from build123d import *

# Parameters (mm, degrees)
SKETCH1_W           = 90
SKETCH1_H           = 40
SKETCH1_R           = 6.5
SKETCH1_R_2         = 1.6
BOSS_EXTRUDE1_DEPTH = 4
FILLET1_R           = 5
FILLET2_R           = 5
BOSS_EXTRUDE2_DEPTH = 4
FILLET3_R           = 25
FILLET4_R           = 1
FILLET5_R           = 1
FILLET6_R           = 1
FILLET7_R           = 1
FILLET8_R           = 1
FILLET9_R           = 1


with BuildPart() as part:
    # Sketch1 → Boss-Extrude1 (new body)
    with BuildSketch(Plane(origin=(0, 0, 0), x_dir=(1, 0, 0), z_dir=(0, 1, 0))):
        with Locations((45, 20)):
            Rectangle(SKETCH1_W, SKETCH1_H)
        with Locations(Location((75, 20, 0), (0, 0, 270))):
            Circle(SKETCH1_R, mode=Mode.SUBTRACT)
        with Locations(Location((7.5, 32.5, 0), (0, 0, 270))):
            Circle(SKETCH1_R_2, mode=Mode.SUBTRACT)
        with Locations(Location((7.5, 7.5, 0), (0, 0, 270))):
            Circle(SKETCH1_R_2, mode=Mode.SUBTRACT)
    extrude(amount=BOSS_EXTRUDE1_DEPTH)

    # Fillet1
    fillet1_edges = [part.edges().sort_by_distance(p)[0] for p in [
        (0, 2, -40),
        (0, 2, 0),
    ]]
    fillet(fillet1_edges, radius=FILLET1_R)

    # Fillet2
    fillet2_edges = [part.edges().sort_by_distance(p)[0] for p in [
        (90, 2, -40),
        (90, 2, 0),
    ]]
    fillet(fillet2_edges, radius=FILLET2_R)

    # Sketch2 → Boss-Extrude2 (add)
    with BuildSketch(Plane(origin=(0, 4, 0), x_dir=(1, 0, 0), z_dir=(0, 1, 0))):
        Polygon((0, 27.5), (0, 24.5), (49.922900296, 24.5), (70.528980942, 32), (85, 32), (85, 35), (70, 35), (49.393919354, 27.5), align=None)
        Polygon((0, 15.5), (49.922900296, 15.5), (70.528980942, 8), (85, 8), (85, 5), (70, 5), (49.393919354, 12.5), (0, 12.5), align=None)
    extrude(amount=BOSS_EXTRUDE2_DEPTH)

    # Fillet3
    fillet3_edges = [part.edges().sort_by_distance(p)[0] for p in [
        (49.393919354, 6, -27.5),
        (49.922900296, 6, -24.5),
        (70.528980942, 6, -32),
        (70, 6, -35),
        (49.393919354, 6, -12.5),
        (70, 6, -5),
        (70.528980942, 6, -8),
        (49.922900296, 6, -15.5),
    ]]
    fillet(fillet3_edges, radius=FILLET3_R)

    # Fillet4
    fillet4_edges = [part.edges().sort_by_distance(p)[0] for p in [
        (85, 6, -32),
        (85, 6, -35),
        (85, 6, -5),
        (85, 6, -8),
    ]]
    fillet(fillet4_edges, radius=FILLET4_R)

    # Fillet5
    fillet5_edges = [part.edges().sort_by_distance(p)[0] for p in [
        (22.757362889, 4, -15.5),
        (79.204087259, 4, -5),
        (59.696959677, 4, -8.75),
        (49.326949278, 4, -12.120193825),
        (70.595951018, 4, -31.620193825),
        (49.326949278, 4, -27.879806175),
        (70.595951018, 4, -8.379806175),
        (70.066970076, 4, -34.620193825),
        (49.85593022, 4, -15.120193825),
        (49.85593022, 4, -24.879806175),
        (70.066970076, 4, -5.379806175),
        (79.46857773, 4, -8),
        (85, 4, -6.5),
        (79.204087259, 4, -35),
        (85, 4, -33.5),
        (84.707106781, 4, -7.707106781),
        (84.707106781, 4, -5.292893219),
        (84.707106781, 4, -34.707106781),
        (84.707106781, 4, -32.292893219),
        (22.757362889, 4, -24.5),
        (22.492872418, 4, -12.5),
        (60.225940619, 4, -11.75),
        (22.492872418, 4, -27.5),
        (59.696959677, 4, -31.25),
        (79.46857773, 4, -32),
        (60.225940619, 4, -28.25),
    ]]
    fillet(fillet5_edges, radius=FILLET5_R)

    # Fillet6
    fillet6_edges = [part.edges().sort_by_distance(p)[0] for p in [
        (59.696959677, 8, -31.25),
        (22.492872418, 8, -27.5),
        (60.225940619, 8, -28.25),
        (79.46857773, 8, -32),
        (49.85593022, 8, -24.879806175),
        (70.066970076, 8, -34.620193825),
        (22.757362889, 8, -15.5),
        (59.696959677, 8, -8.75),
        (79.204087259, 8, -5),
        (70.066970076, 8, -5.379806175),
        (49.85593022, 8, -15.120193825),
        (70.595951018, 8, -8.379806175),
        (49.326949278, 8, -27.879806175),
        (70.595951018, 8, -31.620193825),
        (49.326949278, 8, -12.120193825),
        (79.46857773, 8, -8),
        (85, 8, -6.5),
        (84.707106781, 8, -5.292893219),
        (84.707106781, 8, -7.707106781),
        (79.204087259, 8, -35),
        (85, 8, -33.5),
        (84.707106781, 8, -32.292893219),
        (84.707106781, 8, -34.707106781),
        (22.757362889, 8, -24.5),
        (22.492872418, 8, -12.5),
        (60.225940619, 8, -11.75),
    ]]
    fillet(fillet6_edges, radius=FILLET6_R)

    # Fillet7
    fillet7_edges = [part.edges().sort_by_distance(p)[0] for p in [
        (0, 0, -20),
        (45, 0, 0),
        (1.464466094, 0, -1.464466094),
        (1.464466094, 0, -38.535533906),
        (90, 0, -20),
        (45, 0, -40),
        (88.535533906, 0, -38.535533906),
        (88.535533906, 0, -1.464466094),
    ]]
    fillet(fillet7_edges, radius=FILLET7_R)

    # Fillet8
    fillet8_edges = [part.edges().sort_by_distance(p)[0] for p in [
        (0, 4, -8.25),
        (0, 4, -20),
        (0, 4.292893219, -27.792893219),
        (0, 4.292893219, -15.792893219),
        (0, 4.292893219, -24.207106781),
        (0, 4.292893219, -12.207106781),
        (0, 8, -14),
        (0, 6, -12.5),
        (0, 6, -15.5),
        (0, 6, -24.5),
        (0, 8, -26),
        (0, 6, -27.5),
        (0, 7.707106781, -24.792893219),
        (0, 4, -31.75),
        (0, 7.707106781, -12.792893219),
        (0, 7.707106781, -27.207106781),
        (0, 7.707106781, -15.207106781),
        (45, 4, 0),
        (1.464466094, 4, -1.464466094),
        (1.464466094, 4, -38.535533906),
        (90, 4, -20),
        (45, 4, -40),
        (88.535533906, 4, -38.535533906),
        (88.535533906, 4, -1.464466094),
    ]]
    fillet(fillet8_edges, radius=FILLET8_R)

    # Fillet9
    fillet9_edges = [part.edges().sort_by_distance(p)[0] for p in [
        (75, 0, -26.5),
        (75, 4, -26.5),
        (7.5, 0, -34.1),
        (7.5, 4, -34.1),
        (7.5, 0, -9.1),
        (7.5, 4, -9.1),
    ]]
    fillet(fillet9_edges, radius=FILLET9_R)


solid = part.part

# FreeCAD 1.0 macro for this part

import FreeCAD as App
import Part
import Sketcher

V = App.Vector
Q = App.Units.Quantity


def edges_at(feature, points):
    """Names of the edges that pass closest to the given points."""
    edges = feature.Shape.Edges
    near = lambda p: min(range(len(edges)), key=lambda i: edges[i].distToShape(Part.Vertex(*p))[0])
    return sorted({f"Edge{near(p) + 1}" for p in points})


def add_polygon(sketch, points):
    """Adds a closed chain of lines whose ends are joined by coincident constraints."""
    first, n = sketch.GeometryCount, len(points)
    for a, b in zip(points, points[1:] + points[:1]):
        sketch.addGeometry(Part.LineSegment(App.Vector(*a, 0), App.Vector(*b, 0)), False)
    for i in range(n):
        sketch.addConstraint(Sketcher.Constraint("Coincident", first + i, 2, first + (i + 1) % n, 1))

doc = App.newDocument("Part")
body = doc.addObject("PartDesign::Body", "Body")

sketch1 = doc.addObject("Sketcher::SketchObject", "Sketch")
body.addObject(sketch1)
sketch1.AttachmentSupport = (doc.XZ_Plane, [""])
sketch1.MapMode = "FlatFace"
add_polygon(sketch1, [(0, -40), (0, 0), (90, 0), (90, -40)])
sketch1.addGeometry(Part.Circle(V(7.5, -7.5, 0), V(0, 0, 1), 1.6), False)
sketch1.addGeometry(Part.Circle(V(7.5, -32.5, 0), V(0, 0, 1), 1.6), False)
sketch1.addGeometry(Part.Circle(V(75, -20, 0), V(0, 0, 1), 6.5), False)
sketch1.addConstraint(Sketcher.Constraint("Vertical", 0))
sketch1.addConstraint(Sketcher.Constraint("Horizontal", 1))
sketch1.addConstraint(Sketcher.Constraint("Vertical", 2))
sketch1.addConstraint(Sketcher.Constraint("Horizontal", 3))
sketch1.addConstraint(Sketcher.Constraint("Coincident", 0, 2, -1, 1))
sketch1.addConstraint(Sketcher.Constraint("Equal", 4, 5))
sketch1.addConstraint(Sketcher.Constraint("Vertical", 4, 3, 5, 3))
sketch1.addConstraint(Sketcher.Constraint("Diameter", 6, 13.0))
sketch1.addConstraint(Sketcher.Constraint("Diameter", 4, 3.2))
sketch1.addConstraint(Sketcher.Constraint("DistanceX", 1, 1, 1, 2, 90.0))
sketch1.addConstraint(Sketcher.Constraint("DistanceY", 0, 1, 0, 2, 40.0))
sketch1.addConstraint(Sketcher.Constraint("DistanceX", -1, 1, 6, 3, 75.0))
sketch1.addConstraint(Sketcher.Constraint("DistanceY", 6, 3, -1, 1, 20.0))
sketch1.addConstraint(Sketcher.Constraint("DistanceY", 5, 3, 4, 3, 25.0))
sketch1.addConstraint(Sketcher.Constraint("DistanceX", -1, 1, 4, 3, 7.5))
sketch1.addConstraint(Sketcher.Constraint("DistanceY", 4, 3, -1, 1, 7.5))
pad1 = doc.addObject("PartDesign::Pad", "Pad")
body.addObject(pad1)
pad1.Profile = sketch1
pad1.Length = 4
pad1.Reversed = True
doc.recompute()

fillet = doc.addObject("PartDesign::Fillet", "Fillet")
body.addObject(fillet)
fillet.Base = (pad1, edges_at(pad1, [(0, 2, -40), (0, 2, 0)]))
fillet.Radius = 5
doc.recompute()

fillet2 = doc.addObject("PartDesign::Fillet", "Fillet001")
body.addObject(fillet2)
fillet2.Base = (fillet, edges_at(fillet, [(90, 2, -40), (90, 2, 0)]))
fillet2.Radius = 5

sketch2 = doc.addObject("Sketcher::SketchObject", "Sketch001")
body.addObject(sketch2)
sketch2.AttachmentSupport = (doc.XZ_Plane, [""])
sketch2.MapMode = "FlatFace"
sketch2.AttachmentOffset = App.Placement(V(0, 0, -4), App.Rotation())
add_polygon(sketch2, [(0, -27.5), (0, -24.5), (49.9, -24.5), (70.5, -32), (85, -32), (85, -35), (70, -35), (49.4, -27.5)])
add_polygon(sketch2, [(49.9, -15.5), (0, -15.5), (0, -12.5), (49.4, -12.5), (70, -5), (85, -5), (85, -8), (70.5, -8)])
sketch2.addConstraint(Sketcher.Constraint("Vertical", 0))
sketch2.addConstraint(Sketcher.Constraint("Horizontal", 1))
sketch2.addConstraint(Sketcher.Constraint("Horizontal", 3))
sketch2.addConstraint(Sketcher.Constraint("Vertical", 4))
sketch2.addConstraint(Sketcher.Constraint("Horizontal", 5))
sketch2.addConstraint(Sketcher.Constraint("Horizontal", 7))
sketch2.addConstraint(Sketcher.Constraint("Horizontal", 8))
sketch2.addConstraint(Sketcher.Constraint("Vertical", 9))
sketch2.addConstraint(Sketcher.Constraint("Horizontal", 10))
sketch2.addConstraint(Sketcher.Constraint("Horizontal", 12))
sketch2.addConstraint(Sketcher.Constraint("Vertical", 13))
sketch2.addConstraint(Sketcher.Constraint("Horizontal", 14))
sketch2.addConstraint(Sketcher.Constraint("PointOnObject", 0, 2, -2))
sketch2.addConstraint(Sketcher.Constraint("PointOnObject", 8, 2, -2))
sketch2.addConstraint(Sketcher.Constraint("Parallel", 2, 6))
sketch2.addConstraint(Sketcher.Constraint("Parallel", 11, 15))
sketch2.addConstraint(Sketcher.Constraint("Vertical", 6, 2, 10, 2))
sketch2.addConstraint(Sketcher.Constraint("Vertical", 5, 2, 11, 2))
sketch2.addConstraint(Sketcher.Constraint("Vertical", 4, 2, 12, 2))
sketch2.addConstraint(Sketcher.Constraint("Vertical", 2, 2, 14, 2))
sketch2.addConstraint(Sketcher.Constraint("Vertical", 1, 2, 15, 2))
sketch2.addConstraint(Sketcher.Constraint("Equal", 0, 4))
sketch2.addConstraint(Sketcher.Constraint("Equal", 4, 9))
sketch2.addConstraint(Sketcher.Constraint("Equal", 6, 11))
sketch2.addConstraint(Sketcher.Constraint("DistanceX", 5, 2, 5, 1, 15.0))
sketch2.addConstraint(Sketcher.Constraint("DistanceY", 0, 1, 0, 2, 3.0))
sketch2.addConstraint(Sketcher.Constraint("Angle", 2, Q("-20 deg")))
sketch2.addConstraint(Sketcher.Constraint("DistanceY", 2, 2, -1, 1, 32.0))
sketch2.addConstraint(Sketcher.Constraint("DistanceX", -1, 1, 3, 2, 85.0))
sketch2.addConstraint(Sketcher.Constraint("DistanceY", 11, 2, -1, 1, 5.0))
sketch2.addConstraint(Sketcher.Constraint("DistanceY", 0, 2, 8, 2, 9.0))
sketch2.addConstraint(Sketcher.Constraint("DistanceX", 1, 1, 1, 2, 49.9229))
pad2 = doc.addObject("PartDesign::Pad", "Pad001")
body.addObject(pad2)
pad2.Profile = sketch2
pad2.Length = 4
pad2.Reversed = True
doc.recompute()

fillet3 = doc.addObject("PartDesign::Fillet", "Fillet002")
body.addObject(fillet3)
fillet3.Base = (pad2, edges_at(pad2, [
    (49.394, 6, -27.5),
    (49.923, 6, -24.5),
    (70.529, 6, -32),
    (70, 6, -35),
    (49.394, 6, -12.5),
    (70, 6, -5),
    (70.529, 6, -8),
    (49.923, 6, -15.5),
]))
fillet3.Radius = 25
doc.recompute()

fillet4 = doc.addObject("PartDesign::Fillet", "Fillet003")
body.addObject(fillet4)
fillet4.Base = (fillet3, edges_at(fillet3, [
    (85, 6, -32),
    (85, 6, -35),
    (85, 6, -5),
    (85, 6, -8),
]))
fillet4.Radius = 1
doc.recompute()

fillet5 = doc.addObject("PartDesign::Fillet", "Fillet004")
body.addObject(fillet5)
fillet5.Base = (fillet4, edges_at(fillet4, [
    (22.757, 4, -15.5),
    (79.204, 4, -5),
    (59.697, 4, -8.75),
    (49.327, 4, -12.12),
    (70.596, 4, -31.62),
    (49.327, 4, -27.88),
    (70.596, 4, -8.38),
    (70.067, 4, -34.62),
    (49.856, 4, -15.12),
    (49.856, 4, -24.88),
    (70.067, 4, -5.38),
    (79.469, 4, -8),
    (85, 4, -6.5),
    (79.204, 4, -35),
    (85, 4, -33.5),
    (84.707, 4, -7.707),
    (84.707, 4, -5.293),
    (84.707, 4, -34.707),
    (84.707, 4, -32.293),
    (22.757, 4, -24.5),
    (22.493, 4, -12.5),
    (60.226, 4, -11.75),
    (22.493, 4, -27.5),
    (59.697, 4, -31.25),
    (79.469, 4, -32),
    (60.226, 4, -28.25),
]))
fillet5.Radius = 1
doc.recompute()

fillet6 = doc.addObject("PartDesign::Fillet", "Fillet005")
body.addObject(fillet6)
fillet6.Base = (fillet5, edges_at(fillet5, [
    (59.697, 8, -31.25),
    (22.493, 8, -27.5),
    (60.226, 8, -28.25),
    (79.469, 8, -32),
    (49.856, 8, -24.88),
    (70.067, 8, -34.62),
    (22.757, 8, -15.5),
    (59.697, 8, -8.75),
    (79.204, 8, -5),
    (70.067, 8, -5.38),
    (49.856, 8, -15.12),
    (70.596, 8, -8.38),
    (49.327, 8, -27.88),
    (70.596, 8, -31.62),
    (49.327, 8, -12.12),
    (79.469, 8, -8),
    (85, 8, -6.5),
    (84.707, 8, -5.293),
    (84.707, 8, -7.707),
    (79.204, 8, -35),
    (85, 8, -33.5),
    (84.707, 8, -32.293),
    (84.707, 8, -34.707),
    (22.757, 8, -24.5),
    (22.493, 8, -12.5),
    (60.226, 8, -11.75),
]))
fillet6.Radius = 1
doc.recompute()

fillet7 = doc.addObject("PartDesign::Fillet", "Fillet006")
body.addObject(fillet7)
fillet7.Base = (fillet6, edges_at(fillet6, [
    (0, 0, -20),
    (45, 0, 0),
    (1.464, 0, -1.464),
    (1.464, 0, -38.536),
    (90, 0, -20),
    (45, 0, -40),
    (88.536, 0, -38.536),
    (88.536, 0, -1.464),
]))
fillet7.Radius = 1
doc.recompute()

fillet8 = doc.addObject("PartDesign::Fillet", "Fillet007")
body.addObject(fillet8)
fillet8.Base = (fillet7, edges_at(fillet7, [
    (0, 4, -8.25),
    (0, 4, -20),
    (0, 4.293, -27.793),
    (0, 4.293, -15.793),
    (0, 4.293, -24.207),
    (0, 4.293, -12.207),
    (0, 8, -14),
    (0, 6, -12.5),
    (0, 6, -15.5),
    (0, 6, -24.5),
    (0, 8, -26),
    (0, 6, -27.5),
    (0, 7.707, -24.793),
    (0, 4, -31.75),
    (0, 7.707, -12.793),
    (0, 7.707, -27.207),
    (0, 7.707, -15.207),
    (45, 4, 0),
    (1.464, 4, -1.464),
    (1.464, 4, -38.536),
    (90, 4, -20),
    (45, 4, -40),
    (88.536, 4, -38.536),
    (88.536, 4, -1.464),
]))
fillet8.Radius = 1
doc.recompute()

fillet9 = doc.addObject("PartDesign::Fillet", "Fillet008")
body.addObject(fillet9)
fillet9.Base = (fillet8, edges_at(fillet8, [
    (75, 0, -26.5),
    (75, 4, -26.5),
    (7.5, 0, -34.1),
    (7.5, 4, -34.1),
    (7.5, 0, -9.1),
    (7.5, 4, -9.1),
]))
fillet9.Radius = 1

doc.recompute()
